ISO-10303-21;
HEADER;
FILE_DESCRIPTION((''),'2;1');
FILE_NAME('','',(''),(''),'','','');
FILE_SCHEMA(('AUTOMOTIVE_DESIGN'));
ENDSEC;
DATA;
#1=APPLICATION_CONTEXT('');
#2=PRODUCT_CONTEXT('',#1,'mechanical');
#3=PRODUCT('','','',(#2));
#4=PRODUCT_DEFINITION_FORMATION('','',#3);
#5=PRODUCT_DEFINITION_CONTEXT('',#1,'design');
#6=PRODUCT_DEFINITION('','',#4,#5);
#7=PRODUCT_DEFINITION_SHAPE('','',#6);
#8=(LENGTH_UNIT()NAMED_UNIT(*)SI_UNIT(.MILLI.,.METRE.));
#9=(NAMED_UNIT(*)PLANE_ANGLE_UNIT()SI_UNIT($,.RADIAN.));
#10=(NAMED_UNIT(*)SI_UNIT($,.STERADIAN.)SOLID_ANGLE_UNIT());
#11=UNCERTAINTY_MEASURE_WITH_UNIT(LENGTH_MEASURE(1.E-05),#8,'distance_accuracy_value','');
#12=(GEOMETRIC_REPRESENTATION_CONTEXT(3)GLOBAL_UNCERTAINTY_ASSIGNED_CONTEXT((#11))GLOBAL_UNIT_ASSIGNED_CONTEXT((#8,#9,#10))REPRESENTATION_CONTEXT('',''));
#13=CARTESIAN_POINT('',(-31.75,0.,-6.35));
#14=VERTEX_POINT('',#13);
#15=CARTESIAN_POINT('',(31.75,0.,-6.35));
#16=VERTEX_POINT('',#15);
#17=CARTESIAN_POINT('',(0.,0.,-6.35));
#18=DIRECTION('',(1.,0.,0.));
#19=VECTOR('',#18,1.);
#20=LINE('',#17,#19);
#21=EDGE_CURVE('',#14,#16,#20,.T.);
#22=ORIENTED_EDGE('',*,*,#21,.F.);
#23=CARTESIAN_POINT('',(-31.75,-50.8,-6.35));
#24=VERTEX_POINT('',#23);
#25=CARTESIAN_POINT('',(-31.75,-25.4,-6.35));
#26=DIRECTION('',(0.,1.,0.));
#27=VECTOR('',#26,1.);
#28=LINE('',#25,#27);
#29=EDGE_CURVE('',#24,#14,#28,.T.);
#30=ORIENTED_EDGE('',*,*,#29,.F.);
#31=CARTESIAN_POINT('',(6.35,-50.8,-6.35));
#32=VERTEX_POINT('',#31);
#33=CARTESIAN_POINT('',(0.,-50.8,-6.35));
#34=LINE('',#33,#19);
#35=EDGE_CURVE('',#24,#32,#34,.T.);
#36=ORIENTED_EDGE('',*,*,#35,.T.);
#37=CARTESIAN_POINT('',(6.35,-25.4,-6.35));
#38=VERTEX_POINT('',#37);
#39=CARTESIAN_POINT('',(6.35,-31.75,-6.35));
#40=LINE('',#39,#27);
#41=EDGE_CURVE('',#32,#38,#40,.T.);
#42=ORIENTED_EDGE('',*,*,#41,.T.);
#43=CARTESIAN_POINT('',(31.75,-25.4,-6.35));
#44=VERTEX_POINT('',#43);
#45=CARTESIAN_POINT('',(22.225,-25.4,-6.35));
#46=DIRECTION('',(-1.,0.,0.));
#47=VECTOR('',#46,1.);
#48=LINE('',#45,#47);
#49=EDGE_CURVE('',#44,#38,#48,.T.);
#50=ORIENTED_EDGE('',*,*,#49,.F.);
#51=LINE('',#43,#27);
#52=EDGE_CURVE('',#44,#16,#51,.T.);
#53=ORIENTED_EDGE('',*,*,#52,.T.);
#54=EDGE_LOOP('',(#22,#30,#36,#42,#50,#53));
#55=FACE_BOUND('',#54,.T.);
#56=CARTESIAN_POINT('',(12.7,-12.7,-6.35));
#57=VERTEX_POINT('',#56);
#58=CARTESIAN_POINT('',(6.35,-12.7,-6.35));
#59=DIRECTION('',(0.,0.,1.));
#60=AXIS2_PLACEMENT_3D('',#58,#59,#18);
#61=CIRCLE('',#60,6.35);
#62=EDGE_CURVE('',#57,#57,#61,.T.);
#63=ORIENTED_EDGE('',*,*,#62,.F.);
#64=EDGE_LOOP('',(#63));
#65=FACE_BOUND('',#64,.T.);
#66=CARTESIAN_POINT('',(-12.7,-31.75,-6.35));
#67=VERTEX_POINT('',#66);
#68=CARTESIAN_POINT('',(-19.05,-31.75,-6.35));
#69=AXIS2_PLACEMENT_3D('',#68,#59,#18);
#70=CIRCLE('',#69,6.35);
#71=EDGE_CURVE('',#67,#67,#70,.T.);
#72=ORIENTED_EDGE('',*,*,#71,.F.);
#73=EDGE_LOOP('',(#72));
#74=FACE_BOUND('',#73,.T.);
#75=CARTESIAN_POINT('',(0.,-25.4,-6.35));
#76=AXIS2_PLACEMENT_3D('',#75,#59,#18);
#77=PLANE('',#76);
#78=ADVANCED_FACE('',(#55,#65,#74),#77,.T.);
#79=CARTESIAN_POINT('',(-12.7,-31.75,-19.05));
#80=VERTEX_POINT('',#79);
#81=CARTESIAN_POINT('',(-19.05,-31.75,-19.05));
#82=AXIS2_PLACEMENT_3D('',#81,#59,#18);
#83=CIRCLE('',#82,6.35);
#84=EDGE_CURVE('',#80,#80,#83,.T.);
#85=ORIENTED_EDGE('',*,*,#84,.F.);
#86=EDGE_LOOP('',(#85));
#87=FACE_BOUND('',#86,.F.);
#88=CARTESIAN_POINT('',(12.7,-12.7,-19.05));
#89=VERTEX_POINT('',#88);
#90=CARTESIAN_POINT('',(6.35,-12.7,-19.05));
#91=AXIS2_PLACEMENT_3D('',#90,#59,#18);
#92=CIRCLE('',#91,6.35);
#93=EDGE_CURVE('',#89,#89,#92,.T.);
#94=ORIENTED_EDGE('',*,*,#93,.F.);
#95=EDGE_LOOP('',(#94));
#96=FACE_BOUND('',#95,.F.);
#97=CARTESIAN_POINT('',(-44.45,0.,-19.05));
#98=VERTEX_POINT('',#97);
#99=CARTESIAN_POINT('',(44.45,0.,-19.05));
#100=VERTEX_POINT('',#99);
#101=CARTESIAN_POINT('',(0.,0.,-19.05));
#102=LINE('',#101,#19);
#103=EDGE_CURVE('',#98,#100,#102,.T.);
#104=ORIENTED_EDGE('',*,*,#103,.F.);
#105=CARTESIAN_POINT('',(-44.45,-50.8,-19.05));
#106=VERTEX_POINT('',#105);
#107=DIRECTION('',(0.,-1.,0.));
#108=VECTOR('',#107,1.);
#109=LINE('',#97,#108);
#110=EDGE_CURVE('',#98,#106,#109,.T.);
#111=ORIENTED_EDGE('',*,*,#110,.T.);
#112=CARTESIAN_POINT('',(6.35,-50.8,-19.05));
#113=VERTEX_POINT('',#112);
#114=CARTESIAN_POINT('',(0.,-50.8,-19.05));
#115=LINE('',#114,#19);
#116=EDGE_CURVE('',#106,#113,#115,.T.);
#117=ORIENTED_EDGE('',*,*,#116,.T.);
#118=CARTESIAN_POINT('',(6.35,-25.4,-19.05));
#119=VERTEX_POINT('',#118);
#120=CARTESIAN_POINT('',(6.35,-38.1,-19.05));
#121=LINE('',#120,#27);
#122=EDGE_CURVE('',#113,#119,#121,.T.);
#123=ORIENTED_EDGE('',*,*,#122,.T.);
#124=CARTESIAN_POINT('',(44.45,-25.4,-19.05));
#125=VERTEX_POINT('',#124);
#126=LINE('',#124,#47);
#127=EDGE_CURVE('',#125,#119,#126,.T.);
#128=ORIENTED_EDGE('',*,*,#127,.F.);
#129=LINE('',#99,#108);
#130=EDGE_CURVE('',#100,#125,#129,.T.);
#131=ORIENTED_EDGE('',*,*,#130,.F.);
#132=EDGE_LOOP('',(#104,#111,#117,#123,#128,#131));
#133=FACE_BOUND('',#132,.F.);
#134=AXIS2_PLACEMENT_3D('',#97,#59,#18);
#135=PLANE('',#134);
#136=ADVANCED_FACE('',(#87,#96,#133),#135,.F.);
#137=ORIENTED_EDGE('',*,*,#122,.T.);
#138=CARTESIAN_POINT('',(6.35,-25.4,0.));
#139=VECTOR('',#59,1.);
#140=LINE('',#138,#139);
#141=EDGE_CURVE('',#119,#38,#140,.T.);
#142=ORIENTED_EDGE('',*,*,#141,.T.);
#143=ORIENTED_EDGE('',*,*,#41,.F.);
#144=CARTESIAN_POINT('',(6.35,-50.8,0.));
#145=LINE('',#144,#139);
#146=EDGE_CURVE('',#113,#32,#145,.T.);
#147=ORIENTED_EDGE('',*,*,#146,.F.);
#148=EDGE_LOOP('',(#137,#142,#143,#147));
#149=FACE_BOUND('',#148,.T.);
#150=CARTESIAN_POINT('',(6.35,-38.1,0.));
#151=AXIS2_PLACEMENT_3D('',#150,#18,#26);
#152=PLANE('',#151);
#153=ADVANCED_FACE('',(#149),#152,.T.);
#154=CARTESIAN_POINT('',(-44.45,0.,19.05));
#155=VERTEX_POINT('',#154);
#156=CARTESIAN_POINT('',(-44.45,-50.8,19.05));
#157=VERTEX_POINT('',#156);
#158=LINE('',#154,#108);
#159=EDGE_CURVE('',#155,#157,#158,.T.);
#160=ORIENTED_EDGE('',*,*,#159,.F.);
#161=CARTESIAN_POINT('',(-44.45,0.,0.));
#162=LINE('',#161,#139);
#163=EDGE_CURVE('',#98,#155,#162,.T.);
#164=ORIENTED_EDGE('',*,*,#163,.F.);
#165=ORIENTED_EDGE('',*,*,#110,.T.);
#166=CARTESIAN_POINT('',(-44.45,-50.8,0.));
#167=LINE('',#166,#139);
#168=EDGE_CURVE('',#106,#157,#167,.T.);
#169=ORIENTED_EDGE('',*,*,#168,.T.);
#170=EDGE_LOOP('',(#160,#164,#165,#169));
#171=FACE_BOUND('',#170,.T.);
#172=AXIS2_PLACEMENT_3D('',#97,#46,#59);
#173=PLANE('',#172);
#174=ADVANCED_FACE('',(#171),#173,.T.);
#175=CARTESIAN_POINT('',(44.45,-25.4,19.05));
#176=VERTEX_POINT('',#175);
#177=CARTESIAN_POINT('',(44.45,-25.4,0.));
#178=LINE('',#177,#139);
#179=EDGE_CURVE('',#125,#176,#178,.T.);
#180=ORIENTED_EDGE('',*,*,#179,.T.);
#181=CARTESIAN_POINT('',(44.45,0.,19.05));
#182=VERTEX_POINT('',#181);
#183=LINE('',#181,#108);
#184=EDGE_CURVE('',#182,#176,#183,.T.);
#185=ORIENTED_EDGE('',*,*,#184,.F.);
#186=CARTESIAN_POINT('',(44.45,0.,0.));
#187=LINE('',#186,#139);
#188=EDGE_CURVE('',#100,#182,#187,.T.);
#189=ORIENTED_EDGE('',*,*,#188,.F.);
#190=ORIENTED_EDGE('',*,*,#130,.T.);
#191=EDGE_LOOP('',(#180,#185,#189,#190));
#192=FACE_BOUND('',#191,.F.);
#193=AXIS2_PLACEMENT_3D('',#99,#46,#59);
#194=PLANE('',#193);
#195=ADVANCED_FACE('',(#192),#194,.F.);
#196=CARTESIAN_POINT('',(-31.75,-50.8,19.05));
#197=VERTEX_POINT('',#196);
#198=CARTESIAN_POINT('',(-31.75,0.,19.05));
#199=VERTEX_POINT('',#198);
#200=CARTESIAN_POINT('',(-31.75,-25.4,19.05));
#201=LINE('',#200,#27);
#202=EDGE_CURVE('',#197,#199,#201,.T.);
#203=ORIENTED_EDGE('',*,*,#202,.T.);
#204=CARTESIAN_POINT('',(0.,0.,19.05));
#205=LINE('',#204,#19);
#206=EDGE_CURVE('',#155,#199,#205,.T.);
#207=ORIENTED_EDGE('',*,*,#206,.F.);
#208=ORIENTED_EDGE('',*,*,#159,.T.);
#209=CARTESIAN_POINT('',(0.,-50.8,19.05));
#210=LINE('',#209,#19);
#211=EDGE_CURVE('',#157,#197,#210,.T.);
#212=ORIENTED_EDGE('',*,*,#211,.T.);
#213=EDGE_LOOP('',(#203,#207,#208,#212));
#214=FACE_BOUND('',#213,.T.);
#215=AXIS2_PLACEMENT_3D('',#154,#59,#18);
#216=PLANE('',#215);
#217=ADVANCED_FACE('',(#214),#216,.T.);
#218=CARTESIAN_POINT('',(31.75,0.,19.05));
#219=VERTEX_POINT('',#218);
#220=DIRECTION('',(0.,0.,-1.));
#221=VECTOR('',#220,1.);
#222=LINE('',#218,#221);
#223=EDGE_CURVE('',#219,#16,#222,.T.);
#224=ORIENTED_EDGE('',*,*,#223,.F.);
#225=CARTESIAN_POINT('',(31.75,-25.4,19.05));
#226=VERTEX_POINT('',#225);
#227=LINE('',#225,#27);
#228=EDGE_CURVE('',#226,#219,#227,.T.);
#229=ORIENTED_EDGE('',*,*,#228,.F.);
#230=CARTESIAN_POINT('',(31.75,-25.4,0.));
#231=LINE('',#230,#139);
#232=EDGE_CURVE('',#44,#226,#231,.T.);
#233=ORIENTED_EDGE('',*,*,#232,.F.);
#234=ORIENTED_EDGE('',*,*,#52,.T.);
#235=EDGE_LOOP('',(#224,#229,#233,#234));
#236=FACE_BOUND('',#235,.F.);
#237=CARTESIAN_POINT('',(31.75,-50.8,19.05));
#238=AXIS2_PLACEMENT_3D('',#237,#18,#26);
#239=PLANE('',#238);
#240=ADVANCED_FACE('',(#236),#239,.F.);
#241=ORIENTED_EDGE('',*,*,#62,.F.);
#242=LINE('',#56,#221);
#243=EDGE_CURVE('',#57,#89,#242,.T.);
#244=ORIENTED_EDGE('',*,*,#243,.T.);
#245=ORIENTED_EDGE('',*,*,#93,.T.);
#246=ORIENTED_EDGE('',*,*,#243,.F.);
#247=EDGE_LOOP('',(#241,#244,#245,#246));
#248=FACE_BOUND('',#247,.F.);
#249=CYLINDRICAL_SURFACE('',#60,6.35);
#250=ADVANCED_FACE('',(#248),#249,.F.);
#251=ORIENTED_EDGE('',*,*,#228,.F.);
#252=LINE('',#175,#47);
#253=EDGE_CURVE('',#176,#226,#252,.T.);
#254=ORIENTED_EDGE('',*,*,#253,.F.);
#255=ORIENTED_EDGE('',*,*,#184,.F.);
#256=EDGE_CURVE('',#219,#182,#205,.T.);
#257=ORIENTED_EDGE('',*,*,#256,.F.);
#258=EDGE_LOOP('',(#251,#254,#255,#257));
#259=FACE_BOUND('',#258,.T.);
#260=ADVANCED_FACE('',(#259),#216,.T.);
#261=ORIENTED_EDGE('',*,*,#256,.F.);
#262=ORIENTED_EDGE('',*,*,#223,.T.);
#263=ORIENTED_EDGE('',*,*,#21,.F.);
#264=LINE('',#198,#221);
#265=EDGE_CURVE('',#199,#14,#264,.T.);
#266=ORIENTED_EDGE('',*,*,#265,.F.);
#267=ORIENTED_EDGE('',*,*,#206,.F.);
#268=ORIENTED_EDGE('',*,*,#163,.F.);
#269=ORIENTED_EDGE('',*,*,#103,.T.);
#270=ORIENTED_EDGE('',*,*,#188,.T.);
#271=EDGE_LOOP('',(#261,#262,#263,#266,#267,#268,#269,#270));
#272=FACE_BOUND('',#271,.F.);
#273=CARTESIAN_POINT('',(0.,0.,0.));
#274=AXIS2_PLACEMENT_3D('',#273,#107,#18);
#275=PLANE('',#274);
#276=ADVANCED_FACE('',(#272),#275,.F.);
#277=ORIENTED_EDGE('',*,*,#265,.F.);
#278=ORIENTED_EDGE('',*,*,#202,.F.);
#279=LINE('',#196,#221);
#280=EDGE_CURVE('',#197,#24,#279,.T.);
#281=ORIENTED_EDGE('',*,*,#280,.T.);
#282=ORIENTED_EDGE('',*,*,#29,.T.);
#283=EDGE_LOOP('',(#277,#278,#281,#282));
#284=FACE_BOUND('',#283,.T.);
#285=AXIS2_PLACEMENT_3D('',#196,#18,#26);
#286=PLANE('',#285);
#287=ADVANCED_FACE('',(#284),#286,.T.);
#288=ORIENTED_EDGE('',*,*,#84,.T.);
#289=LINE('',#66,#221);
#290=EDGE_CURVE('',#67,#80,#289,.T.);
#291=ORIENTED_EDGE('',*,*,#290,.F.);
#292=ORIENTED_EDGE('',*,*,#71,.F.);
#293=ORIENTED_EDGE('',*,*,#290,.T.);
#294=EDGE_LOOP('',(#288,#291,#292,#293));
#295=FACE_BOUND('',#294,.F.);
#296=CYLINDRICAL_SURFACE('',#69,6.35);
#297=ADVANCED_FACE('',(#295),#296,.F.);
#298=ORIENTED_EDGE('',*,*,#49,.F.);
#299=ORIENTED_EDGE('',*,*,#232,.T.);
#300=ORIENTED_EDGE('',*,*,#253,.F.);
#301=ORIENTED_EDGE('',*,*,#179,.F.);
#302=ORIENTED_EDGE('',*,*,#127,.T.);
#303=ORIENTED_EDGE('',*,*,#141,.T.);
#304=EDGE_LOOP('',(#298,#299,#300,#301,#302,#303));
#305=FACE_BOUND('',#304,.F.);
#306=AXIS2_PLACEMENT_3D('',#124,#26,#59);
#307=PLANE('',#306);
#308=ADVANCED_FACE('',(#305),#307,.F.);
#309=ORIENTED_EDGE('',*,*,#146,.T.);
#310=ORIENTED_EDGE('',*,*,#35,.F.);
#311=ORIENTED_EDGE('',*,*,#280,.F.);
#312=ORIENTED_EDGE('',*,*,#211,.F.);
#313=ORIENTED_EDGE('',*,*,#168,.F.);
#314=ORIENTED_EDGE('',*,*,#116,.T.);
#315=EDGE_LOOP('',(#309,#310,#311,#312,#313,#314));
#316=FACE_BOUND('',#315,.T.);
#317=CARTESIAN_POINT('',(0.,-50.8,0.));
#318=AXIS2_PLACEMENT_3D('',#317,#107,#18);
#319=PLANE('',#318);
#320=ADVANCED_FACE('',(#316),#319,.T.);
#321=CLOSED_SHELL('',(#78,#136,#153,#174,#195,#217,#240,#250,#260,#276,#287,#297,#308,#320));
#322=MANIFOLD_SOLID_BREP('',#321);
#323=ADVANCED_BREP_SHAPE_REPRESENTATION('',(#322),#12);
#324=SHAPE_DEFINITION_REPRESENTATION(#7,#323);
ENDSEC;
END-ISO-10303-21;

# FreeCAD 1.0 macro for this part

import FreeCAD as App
import Part
import Sketcher
Q = App.Units.Quantity


def add_polygon(sketch, points):
    """Adds a closed chain of lines whose ends are joined by coincident constraints."""
    first, n = sketch.GeometryCount, len(points)
    for a, b in zip(points, points[1:] + points[:1]):
        sketch.addGeometry(Part.LineSegment(App.Vector(*a, 0), App.Vector(*b, 0)), False)
    for i in range(n):
        sketch.addConstraint(Sketcher.Constraint("Coincident", first + i, 2, first + (i + 1) % n, 1))

doc = App.newDocument("Part")
body = doc.addObject("PartDesign::Body", "Body")

# Sketch on XZ plane
sketch1 = body.newObject("Sketcher::SketchObject", "Sketch")
sketch1.AttachmentSupport = (doc.getObject("XZ_Plane"), [""])
sketch1.MapMode = "FlatFace"
add_polygon(sketch1, [(-44.45, 19.05), (-44.45, -19.05), (44.45, -19.05), (44.45, 19.05)])  # lines 0-3
sketch1.addConstraint([
    Sketcher.Constraint("Vertical", 0),
    Sketcher.Constraint("Horizontal", 1),
    Sketcher.Constraint("Vertical", 2),
    Sketcher.Constraint("Horizontal", 3),
    Sketcher.Constraint("Symmetric", 0, 2, 2, 2, -1, 1),
    Sketcher.Constraint("DistanceX", 1, 1, 1, 2, Q("3.5 in")),
    Sketcher.Constraint("DistanceY", 0, 2, 0, 1, Q("1.5 in")),
])
pad1 = body.newObject("PartDesign::Pad", "Pad")
pad1.Profile = sketch1
pad1.Length = Q("2 in")

# Sketch on XY plane
sketch2 = body.newObject("Sketcher::SketchObject", "Sketch001")
sketch2.AttachmentSupport = (doc.getObject("XY_Plane"), [""])
sketch2.MapMode = "FlatFace"
sketch2.AttachmentOffset = App.Placement(App.Vector(0, 0, 0.75 * 25.4), App.Rotation())
add_polygon(sketch2, [(-31.75, 0), (-31.75, -50.8), (31.75, -50.8), (31.75, 0)])  # lines 0-3
sketch2.addConstraint([
    Sketcher.Constraint("Vertical", 0),
    Sketcher.Constraint("Horizontal", 1),
    Sketcher.Constraint("Vertical", 2),
    Sketcher.Constraint("Horizontal", 3),
    Sketcher.Constraint("Symmetric", 2, 2, 3, 2, -1, 1),
    Sketcher.Constraint("DistanceY", 0, 2, 0, 1, Q("2 in")),
    Sketcher.Constraint("DistanceX", 1, 1, 1, 2, Q("2.5 in")),
])
pocket1 = body.newObject("PartDesign::Pocket", "Pocket")
pocket1.Profile = sketch2
pocket1.Length = Q("1 in")

# Sketch on YZ plane
sketch3 = body.newObject("Sketcher::SketchObject", "Sketch002")
sketch3.AttachmentSupport = (doc.getObject("YZ_Plane"), [""])
sketch3.MapMode = "FlatFace"
sketch3.AttachmentOffset = App.Placement(App.Vector(0, 0, 1.75 * 25.4), App.Rotation())
add_polygon(sketch3, [(-50.8, 19.05), (-50.8, -19.05), (-25.4, -19.05), (-25.4, 19.05)])  # lines 0-3
sketch3.addConstraint([
    Sketcher.Constraint("Vertical", 0),
    Sketcher.Constraint("Horizontal", 1),
    Sketcher.Constraint("Vertical", 2),
    Sketcher.Constraint("Horizontal", 3),
    Sketcher.Constraint("DistanceX", 1, 1, 1, 2, Q("1 in")),
    Sketcher.Constraint("DistanceY", 0, 2, 0, 1, Q("1.5 in")),
    Sketcher.Constraint("DistanceX", 0, 2, -1, 1, Q("2 in")),
    Sketcher.Constraint("DistanceY", 0, 2, -1, 1, Q("0.75 in")),
])
pocket2 = body.newObject("PartDesign::Pocket", "Pocket001")
pocket2.Profile = sketch3
pocket2.Length = Q("1.5 in")

# Sketch on XY plane
sketch4 = body.newObject("Sketcher::SketchObject", "Sketch003")
sketch4.AttachmentSupport = (doc.getObject("XY_Plane"), [""])
sketch4.MapMode = "FlatFace"
sketch4.AttachmentOffset = App.Placement(App.Vector(0, 0, -0.25 * 25.4), App.Rotation())
sketch4.addGeometry([
    Part.Circle(App.Vector(-19.05, -31.75, 0), App.Vector(0, 0, 1), 6.35),
    Part.Circle(App.Vector(6.35, -12.7, 0), App.Vector(0, 0, 1), 6.35),
], False)
sketch4.addConstraint([
    Sketcher.Constraint("Equal", 0, 1),
    Sketcher.Constraint("Diameter", 0, Q("0.5 in")),
    Sketcher.Constraint("DistanceX", 0, 3, 1, 3, Q("1 in")),
    Sketcher.Constraint("DistanceY", 1, 3, -1, 1, Q("0.5 in")),
    Sketcher.Constraint("DistanceX", 0, 3, -1, 1, Q("0.75 in")),
    Sketcher.Constraint("DistanceY", 0, 3, -1, 1, Q("1.25 in")),
])
pocket3 = body.newObject("PartDesign::Pocket", "Pocket002")
pocket3.Profile = sketch4
pocket3.Length = Q("1 in")

doc.recompute()
